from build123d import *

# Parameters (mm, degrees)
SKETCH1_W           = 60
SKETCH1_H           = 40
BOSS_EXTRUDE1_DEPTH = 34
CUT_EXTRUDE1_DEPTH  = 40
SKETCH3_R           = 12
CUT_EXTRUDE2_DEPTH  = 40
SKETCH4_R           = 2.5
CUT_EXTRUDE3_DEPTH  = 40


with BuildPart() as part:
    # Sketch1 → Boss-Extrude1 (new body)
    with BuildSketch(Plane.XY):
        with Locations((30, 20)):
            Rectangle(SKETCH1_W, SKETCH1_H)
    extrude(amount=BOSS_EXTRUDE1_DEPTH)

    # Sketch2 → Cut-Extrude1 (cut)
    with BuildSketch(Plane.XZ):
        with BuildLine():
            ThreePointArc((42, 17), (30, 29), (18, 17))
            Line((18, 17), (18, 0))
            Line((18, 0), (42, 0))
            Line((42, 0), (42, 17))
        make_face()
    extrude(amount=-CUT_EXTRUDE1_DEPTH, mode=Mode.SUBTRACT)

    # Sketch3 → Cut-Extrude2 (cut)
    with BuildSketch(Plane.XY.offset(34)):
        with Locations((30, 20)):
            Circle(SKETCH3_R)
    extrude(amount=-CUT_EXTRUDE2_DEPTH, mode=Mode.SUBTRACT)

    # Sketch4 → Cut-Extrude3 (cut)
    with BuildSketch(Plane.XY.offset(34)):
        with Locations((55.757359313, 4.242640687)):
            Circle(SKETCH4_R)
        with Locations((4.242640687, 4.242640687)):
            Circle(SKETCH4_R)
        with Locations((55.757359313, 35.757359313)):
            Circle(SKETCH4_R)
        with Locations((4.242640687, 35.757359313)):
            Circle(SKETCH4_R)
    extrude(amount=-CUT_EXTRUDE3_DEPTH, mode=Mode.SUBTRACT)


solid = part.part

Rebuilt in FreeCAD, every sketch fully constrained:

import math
import FreeCAD as App
import Part
import Sketcher


def add_polygon(sketch, points):
    """Adds a closed chain of lines whose ends are joined by coincident constraints."""
    first, n = sketch.GeometryCount, len(points)
    for a, b in zip(points, points[1:] + points[:1]):
        sketch.addGeometry(Part.LineSegment(App.Vector(*a, 0), App.Vector(*b, 0)), False)
    for i in range(n):
        sketch.addConstraint(Sketcher.Constraint("Coincident", first + i, 2, first + (i + 1) % n, 1))

doc = App.newDocument("Part")
params = doc.addObject("Spreadsheet::Sheet", "Params")
for row, (alias, value) in enumerate([
    ("sketch1_width", "60 mm"),
    ("sketch1_height", "40 mm"),
    ("pad1_length", "34 mm"),
    ("sketch2_radius", "12 mm"),
    ("sketch2_height", "17 mm"),
    ("pocket1_length", "40 mm"),
    ("sketch3_diameter", "24 mm"),
    ("pocket2_length", "40 mm"),
    ("sketch4_diameter", "5 mm"),
    ("pocket3_length", "40 mm"),
], start=1):
    params.set(f"A{row}", alias)
    params.set(f"B{row}", "=" + value)
    params.setAlias(f"B{row}", alias)

body = doc.addObject("PartDesign::Body", "Body")

sketch1 = body.newObject("Sketcher::SketchObject", "Sketch")
sketch1.AttachmentSupport = (doc.getObject("XY_Plane"), [""])
sketch1.MapMode = "FlatFace"
add_polygon(sketch1, [(0, 40), (0, 0), (60, 0), (60, 40)])
sketch1.addConstraint([
    Sketcher.Constraint("Vertical", 0),
    Sketcher.Constraint("Horizontal", 1),
    Sketcher.Constraint("Vertical", 2),
    Sketcher.Constraint("Horizontal", 3),
    Sketcher.Constraint("Coincident", 0, 2, -1, 1),
    Sketcher.Constraint("DistanceX", 1, 1, 1, 2, 60.0),
    Sketcher.Constraint("DistanceY", 0, 2, 0, 1, 40.0),
])
sketch1.setExpression("Constraints[9]", "Params.sketch1_width")
sketch1.setExpression("Constraints[10]", "Params.sketch1_height")
pad1 = body.newObject("PartDesign::Pad", "Pad")
pad1.Profile = sketch1
pad1.setExpression("Length", "Params.pad1_length")

sketch2 = body.newObject("Sketcher::SketchObject", "Sketch001")
sketch2.AttachmentSupport = (doc.getObject("XZ_Plane"), [""])
sketch2.MapMode = "FlatFace"
sketch2.addGeometry([
    Part.ArcOfCircle(Part.Circle(App.Vector(30, 17, 0), App.Vector(0, 0, 1), 12), math.radians(0), math.radians(180)),
    Part.LineSegment(App.Vector(18, 17, 0), App.Vector(18, 0, 0)),
    Part.LineSegment(App.Vector(18, 0, 0), App.Vector(42, 0, 0)),
    Part.LineSegment(App.Vector(42, 0, 0), App.Vector(42, 17, 0)),
], False)
sketch2.addConstraint([
    Sketcher.Constraint("Tangent", 0, 2, 1, 1),
    Sketcher.Constraint("Coincident", 1, 2, 2, 1),
    Sketcher.Constraint("Coincident", 2, 2, 3, 1),
    Sketcher.Constraint("Tangent", 3, 2, 0, 1),
    Sketcher.Constraint("Vertical", 1),
    Sketcher.Constraint("Horizontal", 2),
    Sketcher.Constraint("Vertical", 3),
    Sketcher.Constraint("PointOnObject", 1, 2, -1),
    Sketcher.Constraint("Radius", 0, 12.0),
    Sketcher.Constraint("DistanceY", 1, 2, 1, 1, 17.0),
    Sketcher.Constraint("DistanceX", -1, 1, 0, 3, 30.0),
])
sketch2.setExpression("Constraints[8]", "Params.sketch2_radius")
sketch2.setExpression("Constraints[9]", "Params.sketch2_height")
pocket1 = body.newObject("PartDesign::Pocket", "Pocket")
pocket1.Profile = sketch2
pocket1.setExpression("Length", "Params.pocket1_length")

sketch3 = body.newObject("Sketcher::SketchObject", "Sketch002")
sketch3.AttachmentSupport = (doc.getObject("XY_Plane"), [""])
sketch3.MapMode = "FlatFace"
sketch3.AttachmentOffset = App.Placement(App.Vector(0, 0, 34), App.Rotation())
sketch3.addGeometry(Part.Circle(App.Vector(30, 20, 0), App.Vector(0, 0, 1), 12), False)
sketch3.addConstraint([
    Sketcher.Constraint("Diameter", 0, 24.0),
    Sketcher.Constraint("DistanceX", -1, 1, 0, 3, 30.0),
    Sketcher.Constraint("DistanceY", -1, 1, 0, 3, 20.0),
])
sketch3.setExpression("Constraints[0]", "Params.sketch3_diameter")
pocket2 = body.newObject("PartDesign::Pocket", "Pocket001")
pocket2.Profile = sketch3
pocket2.setExpression("Length", "Params.pocket2_length")

sketch4 = body.newObject("Sketcher::SketchObject", "Sketch003")
sketch4.AttachmentSupport = (doc.getObject("XY_Plane"), [""])
sketch4.MapMode = "FlatFace"
sketch4.AttachmentOffset = App.Placement(App.Vector(0, 0, 34), App.Rotation())
sketch4.addGeometry([
    Part.Circle(App.Vector(55.757359, 4.242641, 0), App.Vector(0, 0, 1), 2.5),
    Part.Circle(App.Vector(4.242641, 4.242641, 0), App.Vector(0, 0, 1), 2.5),
    Part.Circle(App.Vector(55.757359, 35.757359, 0), App.Vector(0, 0, 1), 2.5),
    Part.Circle(App.Vector(4.242641, 35.757359, 0), App.Vector(0, 0, 1), 2.5),
], False)
sketch4.addConstraint([
    Sketcher.Constraint("Equal", 0, 1),
    Sketcher.Constraint("Equal", 1, 2),
    Sketcher.Constraint("Equal", 2, 3),
    Sketcher.Constraint("Horizontal", 0, 3, 1, 3),
    Sketcher.Constraint("Horizontal", 2, 3, 3, 3),
    Sketcher.Constraint("Vertical", 0, 3, 2, 3),
    Sketcher.Constraint("Vertical", 1, 3, 3, 3),
    Sketcher.Constraint("Diameter", 0, 5.0),
    Sketcher.Constraint("DistanceX", -1, 1, 0, 3, 55.757359),
    Sketcher.Constraint("DistanceY", -1, 1, 0, 3, 4.242641),
    Sketcher.Constraint("DistanceX", -1, 1, 1, 3, 4.242641),
    Sketcher.Constraint("DistanceY", -1, 1, 2, 3, 35.757359),
])
sketch4.setExpression("Constraints[7]", "Params.sketch4_diameter")
pocket3 = body.newObject("PartDesign::Pocket", "Pocket002")
pocket3.Profile = sketch4
pocket3.setExpression("Length", "Params.pocket3_length")

doc.recompute()
